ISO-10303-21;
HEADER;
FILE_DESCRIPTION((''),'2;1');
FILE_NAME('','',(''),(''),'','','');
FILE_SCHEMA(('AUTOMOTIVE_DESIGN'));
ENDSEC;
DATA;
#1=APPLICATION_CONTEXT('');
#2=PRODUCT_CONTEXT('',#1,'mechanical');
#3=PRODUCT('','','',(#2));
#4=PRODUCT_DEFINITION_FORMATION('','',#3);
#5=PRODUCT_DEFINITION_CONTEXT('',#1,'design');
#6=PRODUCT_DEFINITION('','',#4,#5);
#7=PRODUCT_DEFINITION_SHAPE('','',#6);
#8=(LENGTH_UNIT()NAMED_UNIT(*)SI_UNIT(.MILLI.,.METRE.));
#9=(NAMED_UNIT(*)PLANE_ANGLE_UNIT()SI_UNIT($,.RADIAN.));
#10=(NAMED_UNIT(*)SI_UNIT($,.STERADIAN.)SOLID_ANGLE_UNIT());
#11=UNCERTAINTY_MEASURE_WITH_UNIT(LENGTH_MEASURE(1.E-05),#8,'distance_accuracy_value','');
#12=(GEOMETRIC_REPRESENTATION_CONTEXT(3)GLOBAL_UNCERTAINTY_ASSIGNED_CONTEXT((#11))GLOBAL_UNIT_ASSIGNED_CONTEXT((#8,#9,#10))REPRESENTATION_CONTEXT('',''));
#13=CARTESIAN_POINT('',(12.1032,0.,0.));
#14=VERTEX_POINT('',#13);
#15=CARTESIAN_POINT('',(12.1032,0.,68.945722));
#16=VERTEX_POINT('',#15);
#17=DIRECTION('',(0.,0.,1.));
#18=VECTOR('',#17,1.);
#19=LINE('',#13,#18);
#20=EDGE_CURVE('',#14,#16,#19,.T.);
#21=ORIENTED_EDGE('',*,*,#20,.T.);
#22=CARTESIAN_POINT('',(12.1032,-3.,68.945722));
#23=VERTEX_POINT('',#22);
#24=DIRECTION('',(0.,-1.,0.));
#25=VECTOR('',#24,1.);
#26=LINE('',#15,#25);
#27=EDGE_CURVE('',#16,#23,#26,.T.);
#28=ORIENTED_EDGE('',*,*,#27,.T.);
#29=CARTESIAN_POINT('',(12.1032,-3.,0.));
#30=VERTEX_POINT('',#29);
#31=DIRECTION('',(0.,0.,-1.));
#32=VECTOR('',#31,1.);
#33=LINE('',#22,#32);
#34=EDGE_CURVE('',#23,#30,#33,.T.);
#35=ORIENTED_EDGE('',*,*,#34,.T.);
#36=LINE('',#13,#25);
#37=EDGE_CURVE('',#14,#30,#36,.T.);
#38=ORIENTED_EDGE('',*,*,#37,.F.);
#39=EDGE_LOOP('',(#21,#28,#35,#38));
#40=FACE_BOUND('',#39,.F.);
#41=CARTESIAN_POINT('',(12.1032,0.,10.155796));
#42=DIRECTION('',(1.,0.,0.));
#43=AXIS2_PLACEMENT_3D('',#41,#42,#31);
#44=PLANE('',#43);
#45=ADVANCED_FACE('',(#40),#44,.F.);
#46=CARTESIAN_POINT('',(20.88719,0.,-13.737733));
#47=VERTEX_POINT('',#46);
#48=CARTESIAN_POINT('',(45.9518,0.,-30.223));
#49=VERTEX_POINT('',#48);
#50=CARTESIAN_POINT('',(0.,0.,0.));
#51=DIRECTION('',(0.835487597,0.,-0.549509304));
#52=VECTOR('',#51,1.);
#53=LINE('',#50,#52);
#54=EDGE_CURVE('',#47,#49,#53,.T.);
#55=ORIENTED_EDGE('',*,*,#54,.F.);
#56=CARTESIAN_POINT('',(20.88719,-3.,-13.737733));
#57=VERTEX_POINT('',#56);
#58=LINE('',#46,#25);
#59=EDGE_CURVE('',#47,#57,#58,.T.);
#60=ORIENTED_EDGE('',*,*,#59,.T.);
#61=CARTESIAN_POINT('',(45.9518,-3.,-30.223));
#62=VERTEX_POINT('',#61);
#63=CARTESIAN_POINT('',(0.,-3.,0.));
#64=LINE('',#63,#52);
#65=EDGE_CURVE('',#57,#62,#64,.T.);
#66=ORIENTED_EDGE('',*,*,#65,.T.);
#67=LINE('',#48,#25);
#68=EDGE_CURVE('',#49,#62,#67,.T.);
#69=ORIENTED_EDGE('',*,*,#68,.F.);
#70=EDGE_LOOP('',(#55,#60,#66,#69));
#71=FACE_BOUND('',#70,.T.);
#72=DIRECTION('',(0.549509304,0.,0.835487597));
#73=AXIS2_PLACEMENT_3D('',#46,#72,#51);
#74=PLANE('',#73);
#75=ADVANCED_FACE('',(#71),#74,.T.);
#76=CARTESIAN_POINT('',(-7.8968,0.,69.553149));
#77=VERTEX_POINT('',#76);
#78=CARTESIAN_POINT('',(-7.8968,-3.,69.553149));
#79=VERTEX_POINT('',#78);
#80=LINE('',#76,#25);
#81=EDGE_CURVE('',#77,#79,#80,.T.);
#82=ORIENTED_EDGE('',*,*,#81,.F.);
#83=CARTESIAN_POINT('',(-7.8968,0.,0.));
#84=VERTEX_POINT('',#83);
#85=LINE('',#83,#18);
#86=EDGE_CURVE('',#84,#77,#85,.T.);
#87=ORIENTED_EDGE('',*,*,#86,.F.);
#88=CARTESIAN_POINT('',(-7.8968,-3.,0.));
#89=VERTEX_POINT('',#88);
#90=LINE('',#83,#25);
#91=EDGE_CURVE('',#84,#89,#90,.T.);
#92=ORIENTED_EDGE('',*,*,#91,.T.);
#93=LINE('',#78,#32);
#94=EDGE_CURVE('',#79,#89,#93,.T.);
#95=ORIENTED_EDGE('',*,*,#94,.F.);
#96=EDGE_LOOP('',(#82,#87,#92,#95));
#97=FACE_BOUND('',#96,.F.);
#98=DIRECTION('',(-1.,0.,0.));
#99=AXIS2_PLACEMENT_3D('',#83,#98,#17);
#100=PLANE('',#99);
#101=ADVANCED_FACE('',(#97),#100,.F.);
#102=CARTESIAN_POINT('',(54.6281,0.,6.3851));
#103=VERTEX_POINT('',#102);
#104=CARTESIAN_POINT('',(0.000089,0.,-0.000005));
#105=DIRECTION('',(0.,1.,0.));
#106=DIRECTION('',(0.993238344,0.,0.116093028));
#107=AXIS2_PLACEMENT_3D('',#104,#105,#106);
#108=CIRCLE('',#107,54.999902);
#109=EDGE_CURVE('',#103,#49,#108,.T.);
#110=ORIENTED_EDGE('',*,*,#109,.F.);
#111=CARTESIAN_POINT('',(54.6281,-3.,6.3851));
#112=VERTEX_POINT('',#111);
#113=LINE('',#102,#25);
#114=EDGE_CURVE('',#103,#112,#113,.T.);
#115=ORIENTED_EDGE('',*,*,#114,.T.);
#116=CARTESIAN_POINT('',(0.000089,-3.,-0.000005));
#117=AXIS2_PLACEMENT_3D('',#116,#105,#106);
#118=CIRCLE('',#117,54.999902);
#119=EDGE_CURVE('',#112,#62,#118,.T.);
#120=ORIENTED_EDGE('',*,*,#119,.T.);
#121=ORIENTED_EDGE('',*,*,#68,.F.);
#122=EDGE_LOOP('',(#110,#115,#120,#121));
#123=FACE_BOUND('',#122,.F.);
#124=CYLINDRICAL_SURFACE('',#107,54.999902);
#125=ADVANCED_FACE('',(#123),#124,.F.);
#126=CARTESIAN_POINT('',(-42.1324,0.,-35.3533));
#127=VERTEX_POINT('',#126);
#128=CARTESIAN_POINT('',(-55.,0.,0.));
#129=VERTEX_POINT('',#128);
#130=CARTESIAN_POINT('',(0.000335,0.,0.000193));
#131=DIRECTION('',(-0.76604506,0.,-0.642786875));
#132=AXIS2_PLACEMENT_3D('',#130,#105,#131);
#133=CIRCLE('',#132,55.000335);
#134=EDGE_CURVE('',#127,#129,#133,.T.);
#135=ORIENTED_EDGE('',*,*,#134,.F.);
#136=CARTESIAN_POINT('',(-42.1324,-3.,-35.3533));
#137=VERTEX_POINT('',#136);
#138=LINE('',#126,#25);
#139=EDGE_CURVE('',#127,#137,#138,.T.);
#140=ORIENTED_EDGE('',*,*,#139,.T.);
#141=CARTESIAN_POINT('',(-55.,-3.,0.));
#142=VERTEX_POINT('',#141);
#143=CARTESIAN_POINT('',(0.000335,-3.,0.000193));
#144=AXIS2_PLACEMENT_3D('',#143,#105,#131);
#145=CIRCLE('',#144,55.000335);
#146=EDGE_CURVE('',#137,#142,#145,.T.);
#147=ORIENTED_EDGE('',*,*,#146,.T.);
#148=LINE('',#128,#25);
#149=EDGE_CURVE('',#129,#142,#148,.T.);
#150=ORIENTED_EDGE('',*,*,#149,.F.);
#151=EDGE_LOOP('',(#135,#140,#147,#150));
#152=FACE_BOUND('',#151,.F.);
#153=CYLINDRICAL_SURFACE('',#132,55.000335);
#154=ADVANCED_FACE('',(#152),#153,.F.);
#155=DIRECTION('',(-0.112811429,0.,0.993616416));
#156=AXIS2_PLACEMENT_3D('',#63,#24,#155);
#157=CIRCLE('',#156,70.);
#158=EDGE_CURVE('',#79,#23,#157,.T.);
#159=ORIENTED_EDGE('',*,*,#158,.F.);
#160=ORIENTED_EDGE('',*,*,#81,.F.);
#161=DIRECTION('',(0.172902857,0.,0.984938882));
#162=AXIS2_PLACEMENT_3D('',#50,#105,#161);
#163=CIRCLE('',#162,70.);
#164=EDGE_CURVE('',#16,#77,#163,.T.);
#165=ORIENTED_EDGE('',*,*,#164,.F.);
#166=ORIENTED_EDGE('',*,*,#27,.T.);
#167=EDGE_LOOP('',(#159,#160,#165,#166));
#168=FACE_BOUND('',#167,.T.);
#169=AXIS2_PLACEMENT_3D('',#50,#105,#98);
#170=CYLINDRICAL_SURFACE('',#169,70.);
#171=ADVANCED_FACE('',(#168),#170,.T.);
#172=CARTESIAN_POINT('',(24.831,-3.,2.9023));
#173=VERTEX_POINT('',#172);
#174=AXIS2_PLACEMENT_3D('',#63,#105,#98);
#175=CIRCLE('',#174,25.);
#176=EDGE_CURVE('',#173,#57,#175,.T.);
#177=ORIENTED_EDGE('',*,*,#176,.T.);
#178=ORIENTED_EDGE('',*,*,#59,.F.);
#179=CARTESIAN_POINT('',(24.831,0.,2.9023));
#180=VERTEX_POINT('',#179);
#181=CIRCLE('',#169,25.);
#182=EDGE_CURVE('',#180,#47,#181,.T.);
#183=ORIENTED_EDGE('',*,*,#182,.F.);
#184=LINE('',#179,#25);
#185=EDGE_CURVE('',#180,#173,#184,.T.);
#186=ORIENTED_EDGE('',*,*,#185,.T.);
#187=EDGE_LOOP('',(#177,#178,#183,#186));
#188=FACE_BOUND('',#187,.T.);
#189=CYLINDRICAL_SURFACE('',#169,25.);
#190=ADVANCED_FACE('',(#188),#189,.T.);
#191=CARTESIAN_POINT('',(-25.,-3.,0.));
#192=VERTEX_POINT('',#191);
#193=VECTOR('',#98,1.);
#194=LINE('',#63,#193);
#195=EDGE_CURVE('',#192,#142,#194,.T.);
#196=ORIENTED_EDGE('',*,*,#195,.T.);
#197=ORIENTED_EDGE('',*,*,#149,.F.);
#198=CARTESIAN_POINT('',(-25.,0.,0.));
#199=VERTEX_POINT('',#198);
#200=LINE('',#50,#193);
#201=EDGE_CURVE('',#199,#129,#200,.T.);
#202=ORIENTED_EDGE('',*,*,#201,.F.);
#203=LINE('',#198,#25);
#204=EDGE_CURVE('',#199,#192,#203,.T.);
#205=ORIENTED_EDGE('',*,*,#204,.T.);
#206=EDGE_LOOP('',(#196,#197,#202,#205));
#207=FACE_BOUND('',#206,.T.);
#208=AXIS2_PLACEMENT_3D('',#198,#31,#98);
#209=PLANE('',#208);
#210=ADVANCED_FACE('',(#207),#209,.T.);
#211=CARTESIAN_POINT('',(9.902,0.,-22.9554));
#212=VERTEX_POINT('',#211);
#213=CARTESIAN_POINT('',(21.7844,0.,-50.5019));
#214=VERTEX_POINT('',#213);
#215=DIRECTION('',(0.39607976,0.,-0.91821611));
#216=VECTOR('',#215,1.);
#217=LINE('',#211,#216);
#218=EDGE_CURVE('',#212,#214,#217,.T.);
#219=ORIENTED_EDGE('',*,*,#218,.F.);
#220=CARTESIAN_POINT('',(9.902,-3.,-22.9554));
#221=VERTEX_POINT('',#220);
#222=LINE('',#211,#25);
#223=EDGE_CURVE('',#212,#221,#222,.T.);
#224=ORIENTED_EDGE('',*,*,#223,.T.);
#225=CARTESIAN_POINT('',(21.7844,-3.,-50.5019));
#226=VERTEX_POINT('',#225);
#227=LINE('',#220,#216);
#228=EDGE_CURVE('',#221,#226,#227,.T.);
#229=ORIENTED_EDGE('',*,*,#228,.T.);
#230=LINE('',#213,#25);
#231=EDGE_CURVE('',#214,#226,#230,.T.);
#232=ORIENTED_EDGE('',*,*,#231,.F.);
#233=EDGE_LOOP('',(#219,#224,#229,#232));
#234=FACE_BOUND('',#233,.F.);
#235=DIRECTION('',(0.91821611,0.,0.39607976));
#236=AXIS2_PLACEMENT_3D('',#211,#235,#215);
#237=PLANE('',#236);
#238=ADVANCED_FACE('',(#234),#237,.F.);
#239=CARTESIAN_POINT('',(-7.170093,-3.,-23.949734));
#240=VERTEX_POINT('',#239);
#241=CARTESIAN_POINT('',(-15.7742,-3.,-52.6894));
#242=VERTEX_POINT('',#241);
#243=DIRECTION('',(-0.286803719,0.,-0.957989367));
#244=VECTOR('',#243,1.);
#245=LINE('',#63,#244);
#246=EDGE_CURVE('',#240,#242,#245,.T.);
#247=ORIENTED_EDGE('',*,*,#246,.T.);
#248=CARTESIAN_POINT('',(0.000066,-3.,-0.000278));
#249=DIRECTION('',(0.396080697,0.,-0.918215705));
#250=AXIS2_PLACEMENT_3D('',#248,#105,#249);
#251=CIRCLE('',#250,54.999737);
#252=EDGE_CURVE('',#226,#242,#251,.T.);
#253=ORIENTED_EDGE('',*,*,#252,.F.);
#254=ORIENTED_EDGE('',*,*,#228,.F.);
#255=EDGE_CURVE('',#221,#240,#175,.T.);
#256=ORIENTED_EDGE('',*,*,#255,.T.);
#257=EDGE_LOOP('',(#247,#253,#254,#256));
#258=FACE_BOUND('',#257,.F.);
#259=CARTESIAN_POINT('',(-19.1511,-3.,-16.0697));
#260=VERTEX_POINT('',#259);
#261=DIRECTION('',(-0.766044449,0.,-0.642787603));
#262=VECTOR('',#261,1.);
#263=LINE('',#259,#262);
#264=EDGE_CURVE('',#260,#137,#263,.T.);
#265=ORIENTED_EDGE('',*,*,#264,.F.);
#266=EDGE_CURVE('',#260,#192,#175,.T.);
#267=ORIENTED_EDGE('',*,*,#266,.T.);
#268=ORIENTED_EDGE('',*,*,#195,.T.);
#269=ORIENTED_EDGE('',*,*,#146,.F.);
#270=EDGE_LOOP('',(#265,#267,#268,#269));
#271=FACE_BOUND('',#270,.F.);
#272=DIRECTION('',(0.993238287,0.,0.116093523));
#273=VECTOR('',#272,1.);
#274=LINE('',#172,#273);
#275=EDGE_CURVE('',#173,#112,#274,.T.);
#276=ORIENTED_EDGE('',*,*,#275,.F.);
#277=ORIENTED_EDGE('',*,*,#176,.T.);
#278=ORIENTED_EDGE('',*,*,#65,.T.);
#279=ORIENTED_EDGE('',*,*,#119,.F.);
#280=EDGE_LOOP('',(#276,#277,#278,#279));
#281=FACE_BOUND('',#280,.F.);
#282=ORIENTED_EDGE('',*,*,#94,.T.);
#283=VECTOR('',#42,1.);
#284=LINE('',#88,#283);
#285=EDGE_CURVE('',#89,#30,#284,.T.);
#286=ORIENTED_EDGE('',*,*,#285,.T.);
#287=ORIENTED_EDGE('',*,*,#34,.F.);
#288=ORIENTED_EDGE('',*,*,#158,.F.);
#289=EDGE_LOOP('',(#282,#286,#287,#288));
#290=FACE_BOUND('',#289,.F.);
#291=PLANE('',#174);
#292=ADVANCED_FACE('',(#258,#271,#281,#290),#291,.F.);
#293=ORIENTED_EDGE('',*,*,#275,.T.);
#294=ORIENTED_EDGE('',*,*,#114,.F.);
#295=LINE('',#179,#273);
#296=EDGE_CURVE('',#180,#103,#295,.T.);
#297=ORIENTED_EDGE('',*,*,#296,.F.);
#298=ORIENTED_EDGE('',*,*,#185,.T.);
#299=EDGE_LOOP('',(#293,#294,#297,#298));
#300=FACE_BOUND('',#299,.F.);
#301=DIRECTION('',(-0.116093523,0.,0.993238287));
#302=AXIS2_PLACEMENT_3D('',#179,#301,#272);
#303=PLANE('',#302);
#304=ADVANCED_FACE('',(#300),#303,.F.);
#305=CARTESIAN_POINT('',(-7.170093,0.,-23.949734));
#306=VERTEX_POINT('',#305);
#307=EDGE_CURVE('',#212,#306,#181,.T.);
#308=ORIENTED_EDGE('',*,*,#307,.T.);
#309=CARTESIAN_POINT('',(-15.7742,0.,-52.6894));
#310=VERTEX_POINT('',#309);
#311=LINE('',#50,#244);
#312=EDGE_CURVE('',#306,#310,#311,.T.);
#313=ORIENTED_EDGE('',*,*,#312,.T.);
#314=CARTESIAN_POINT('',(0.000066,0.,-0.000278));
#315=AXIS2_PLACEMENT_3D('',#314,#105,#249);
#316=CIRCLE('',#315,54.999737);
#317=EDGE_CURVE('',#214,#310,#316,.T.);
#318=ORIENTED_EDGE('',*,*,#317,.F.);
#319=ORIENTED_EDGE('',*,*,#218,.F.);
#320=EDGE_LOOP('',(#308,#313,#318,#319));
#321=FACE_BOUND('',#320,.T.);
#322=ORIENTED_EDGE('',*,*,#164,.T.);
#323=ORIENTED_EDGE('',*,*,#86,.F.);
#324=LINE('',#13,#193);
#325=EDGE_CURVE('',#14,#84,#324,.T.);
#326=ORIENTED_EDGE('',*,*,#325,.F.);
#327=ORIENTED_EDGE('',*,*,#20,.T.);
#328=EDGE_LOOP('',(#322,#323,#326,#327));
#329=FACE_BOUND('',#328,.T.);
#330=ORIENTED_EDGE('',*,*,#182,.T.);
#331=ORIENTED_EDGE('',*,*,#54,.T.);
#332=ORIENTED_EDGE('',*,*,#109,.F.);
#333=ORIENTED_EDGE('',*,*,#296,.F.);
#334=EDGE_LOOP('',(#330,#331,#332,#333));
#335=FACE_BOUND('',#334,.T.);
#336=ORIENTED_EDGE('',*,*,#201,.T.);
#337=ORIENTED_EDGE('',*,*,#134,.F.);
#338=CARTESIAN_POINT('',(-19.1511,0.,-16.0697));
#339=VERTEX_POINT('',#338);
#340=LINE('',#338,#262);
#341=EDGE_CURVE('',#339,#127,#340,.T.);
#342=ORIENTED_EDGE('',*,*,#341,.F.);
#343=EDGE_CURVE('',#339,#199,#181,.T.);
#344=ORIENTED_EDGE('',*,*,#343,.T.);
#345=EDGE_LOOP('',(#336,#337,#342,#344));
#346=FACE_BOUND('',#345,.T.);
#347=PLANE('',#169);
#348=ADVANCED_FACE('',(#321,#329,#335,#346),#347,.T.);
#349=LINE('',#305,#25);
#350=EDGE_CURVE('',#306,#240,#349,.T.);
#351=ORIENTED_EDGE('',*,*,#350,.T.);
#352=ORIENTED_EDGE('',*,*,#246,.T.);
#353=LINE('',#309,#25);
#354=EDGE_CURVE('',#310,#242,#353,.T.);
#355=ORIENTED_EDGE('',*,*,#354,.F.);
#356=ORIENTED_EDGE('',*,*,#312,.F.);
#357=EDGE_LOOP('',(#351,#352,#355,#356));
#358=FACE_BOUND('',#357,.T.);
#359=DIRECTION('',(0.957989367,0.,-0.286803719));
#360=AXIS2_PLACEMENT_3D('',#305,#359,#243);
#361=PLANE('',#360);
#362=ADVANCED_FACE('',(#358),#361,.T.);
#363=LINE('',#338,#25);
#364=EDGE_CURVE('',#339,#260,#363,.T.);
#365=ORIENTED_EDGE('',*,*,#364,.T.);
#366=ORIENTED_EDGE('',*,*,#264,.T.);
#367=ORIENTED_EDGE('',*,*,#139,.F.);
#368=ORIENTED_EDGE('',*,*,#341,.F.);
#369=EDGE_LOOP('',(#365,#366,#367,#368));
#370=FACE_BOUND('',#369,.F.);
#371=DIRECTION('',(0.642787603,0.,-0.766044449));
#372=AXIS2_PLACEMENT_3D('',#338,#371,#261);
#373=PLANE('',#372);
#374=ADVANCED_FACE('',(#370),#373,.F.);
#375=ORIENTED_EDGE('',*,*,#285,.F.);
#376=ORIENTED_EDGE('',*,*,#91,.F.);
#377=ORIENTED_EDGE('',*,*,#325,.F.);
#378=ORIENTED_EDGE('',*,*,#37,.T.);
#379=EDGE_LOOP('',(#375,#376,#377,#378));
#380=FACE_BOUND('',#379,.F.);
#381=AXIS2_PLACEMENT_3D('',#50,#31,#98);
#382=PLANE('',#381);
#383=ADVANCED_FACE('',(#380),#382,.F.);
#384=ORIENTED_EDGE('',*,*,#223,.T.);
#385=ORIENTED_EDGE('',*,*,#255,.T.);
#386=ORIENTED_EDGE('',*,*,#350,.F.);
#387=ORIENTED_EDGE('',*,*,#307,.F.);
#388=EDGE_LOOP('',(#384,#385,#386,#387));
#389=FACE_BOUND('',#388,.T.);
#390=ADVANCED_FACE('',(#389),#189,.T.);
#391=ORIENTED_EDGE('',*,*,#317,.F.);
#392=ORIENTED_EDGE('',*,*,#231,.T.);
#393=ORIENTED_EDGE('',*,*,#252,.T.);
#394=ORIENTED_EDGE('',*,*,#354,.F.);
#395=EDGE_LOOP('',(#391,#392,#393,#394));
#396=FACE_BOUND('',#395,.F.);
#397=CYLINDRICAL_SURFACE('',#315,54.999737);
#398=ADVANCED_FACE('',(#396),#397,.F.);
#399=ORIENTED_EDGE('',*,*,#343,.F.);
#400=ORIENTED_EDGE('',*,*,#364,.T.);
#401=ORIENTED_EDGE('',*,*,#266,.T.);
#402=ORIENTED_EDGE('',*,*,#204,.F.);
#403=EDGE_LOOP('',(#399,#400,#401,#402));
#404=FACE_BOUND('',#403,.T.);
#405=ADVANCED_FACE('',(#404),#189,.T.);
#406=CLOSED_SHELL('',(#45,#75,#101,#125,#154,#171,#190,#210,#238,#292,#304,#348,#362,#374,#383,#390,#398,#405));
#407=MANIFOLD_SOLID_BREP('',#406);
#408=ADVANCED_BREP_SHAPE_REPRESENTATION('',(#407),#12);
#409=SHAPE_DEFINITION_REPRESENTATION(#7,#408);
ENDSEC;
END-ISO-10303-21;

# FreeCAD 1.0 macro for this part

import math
import FreeCAD as App
import Part
import Sketcher

V = App.Vector
Q = App.Units.Quantity

doc = App.newDocument("Part")
body = doc.addObject("PartDesign::Body", "Body")

sketch1 = doc.addObject("Sketcher::SketchObject", "Sketch")
body.addObject(sketch1)
sketch1.AttachmentSupport = (doc.XZ_Plane, [""])
sketch1.MapMode = "FlatFace"
sketch1.addGeometry(Part.LineSegment(V(-8, 0, 0), V(12, 0, 0)), False)
sketch1.addGeometry(Part.LineSegment(V(12, 0, 0), V(12, 69, 0)), False)
sketch1.addGeometry(Part.ArcOfCircle(Part.Circle(V(0, 0, 0), V(0, 0, 1), 70), math.radians(96), math.radians(440)), False)
sketch1.addGeometry(Part.LineSegment(V(-8, 70, 0), V(-8, 0, 0)), False)
sketch1.addGeometry(Part.ArcOfCircle(Part.Circle(V(0, 0, 0), V(0, 0, 1), 25), math.radians(180), math.radians(220)), False)
sketch1.addGeometry(Part.LineSegment(V(-25, 0, 0), V(-55, 0, 0)), False)
sketch1.addGeometry(Part.ArcOfCircle(Part.Circle(V(0, 0, 0), V(0, 0, 1), 55), math.radians(180), math.radians(220)), False)
sketch1.addGeometry(Part.LineSegment(V(-42, -35, 0), V(-19, -16, 0)), False)
sketch1.addGeometry(Part.LineSegment(V(55, 6, 0), V(25, 3, 0)), False)
sketch1.addGeometry(Part.ArcOfCircle(Part.Circle(V(0, 0, 0), V(0, 0, 1), 25), math.radians(-33), math.radians(7)), False)
sketch1.addGeometry(Part.LineSegment(V(21, -14, 0), V(46, -30, 0)), False)
sketch1.addGeometry(Part.ArcOfCircle(Part.Circle(V(0, 0, 0), V(0, 0, 1), 55), math.radians(-33), math.radians(7)), False)
sketch1.addGeometry(Part.LineSegment(V(22, -51, 0), V(10, -23, 0)), False)
sketch1.addGeometry(Part.ArcOfCircle(Part.Circle(V(0, 0, 0), V(0, 0, 1), 25), math.radians(-107), math.radians(-67)), False)
sketch1.addGeometry(Part.LineSegment(V(-7, -24, 0), V(-16, -53, 0)), False)
sketch1.addGeometry(Part.ArcOfCircle(Part.Circle(V(0, 0, 0), V(0, 0, 1), 55), math.radians(-107), math.radians(-67)), False)
sketch1.addConstraint(Sketcher.Constraint("Coincident", 0, 2, 1, 1))
sketch1.addConstraint(Sketcher.Constraint("Coincident", 1, 2, 2, 2))
sketch1.addConstraint(Sketcher.Constraint("Coincident", 2, 1, 3, 1))
sketch1.addConstraint(Sketcher.Constraint("Coincident", 3, 2, 0, 1))
sketch1.addConstraint(Sketcher.Constraint("Coincident", 4, 1, 5, 1))
sketch1.addConstraint(Sketcher.Constraint("Coincident", 5, 2, 6, 1))
sketch1.addConstraint(Sketcher.Constraint("Coincident", 6, 2, 7, 1))
sketch1.addConstraint(Sketcher.Constraint("Coincident", 7, 2, 4, 2))
sketch1.addConstraint(Sketcher.Constraint("Coincident", 8, 2, 9, 2))
sketch1.addConstraint(Sketcher.Constraint("Coincident", 9, 1, 10, 1))
sketch1.addConstraint(Sketcher.Constraint("Coincident", 10, 2, 11, 1))
sketch1.addConstraint(Sketcher.Constraint("Coincident", 11, 2, 8, 1))
sketch1.addConstraint(Sketcher.Constraint("Coincident", 12, 2, 13, 2))
sketch1.addConstraint(Sketcher.Constraint("Coincident", 13, 1, 14, 1))
sketch1.addConstraint(Sketcher.Constraint("Coincident", 14, 2, 15, 1))
sketch1.addConstraint(Sketcher.Constraint("Coincident", 15, 2, 12, 1))
sketch1.addConstraint(Sketcher.Constraint("Horizontal", 0))
sketch1.addConstraint(Sketcher.Constraint("Vertical", 1))
sketch1.addConstraint(Sketcher.Constraint("Vertical", 3))
sketch1.addConstraint(Sketcher.Constraint("Horizontal", 5))
sketch1.addConstraint(Sketcher.Constraint("Coincident", 2, 3, -1, 1))
sketch1.addConstraint(Sketcher.Constraint("Coincident", 4, 3, -1, 1))
sketch1.addConstraint(Sketcher.Constraint("Coincident", 6, 3, -1, 1))
sketch1.addConstraint(Sketcher.Constraint("Coincident", 9, 3, -1, 1))
sketch1.addConstraint(Sketcher.Constraint("Coincident", 11, 3, -1, 1))
sketch1.addConstraint(Sketcher.Constraint("Coincident", 13, 3, -1, 1))
sketch1.addConstraint(Sketcher.Constraint("Coincident", 15, 3, -1, 1))
sketch1.addConstraint(Sketcher.Constraint("Equal", 4, 9))
sketch1.addConstraint(Sketcher.Constraint("Equal", 6, 11))
sketch1.addConstraint(Sketcher.Constraint("Equal", 9, 13))
sketch1.addConstraint(Sketcher.Constraint("Equal", 11, 15))
sketch1.addConstraint(Sketcher.Constraint("PointOnObject", 0, 2, -1))
sketch1.addConstraint(Sketcher.Constraint("PointOnObject", 4, 1, -1))
sketch1.addConstraint(Sketcher.Constraint("Radius", 2, 70.0))
sketch1.addConstraint(Sketcher.Constraint("Radius", 4, 25.0))
sketch1.addConstraint(Sketcher.Constraint("Radius", 6, 55.0))
sketch1.addConstraint(Sketcher.Constraint("DistanceX", 0, 1, 0, 2, 20.0))
sketch1.addConstraint(Sketcher.Constraint("Angle", 7, Q("40 deg")))
sketch1.addConstraint(Sketcher.Constraint("DistanceX", 13, 1, -1, 1, 7.17))
sketch1.addConstraint(Sketcher.Constraint("DistanceY", 9, 1, 8, 2, 16.64))
sketch1.addConstraint(Sketcher.Constraint("DistanceY", 13, 1, 7, 2, 7.88))
sketch1.addConstraint(Sketcher.Constraint("DistanceY", 1, 1, 1, 2, 68.9457))
sketch1.addConstraint(Sketcher.Constraint("DistanceX", -1, 1, 8, 2, 24.831))
sketch1.addConstraint(Sketcher.Constraint("DistanceY", 10, 2, -1, 1, 30.223))
sketch1.addConstraint(Sketcher.Constraint("DistanceX", -1, 1, 11, 2, 54.628))
sketch1.addConstraint(Sketcher.Constraint("DistanceX", -1, 1, 12, 2, 9.902))
sketch1.addConstraint(Sketcher.Constraint("DistanceX", 14, 2, 13, 1, 8.604))
sketch1.addConstraint(Sketcher.Constraint("DistanceY", 15, 2, 9, 1, 36.764))
pad1 = doc.addObject("PartDesign::Pad", "Pad")
body.addObject(pad1)
pad1.Profile = sketch1
pad1.Length = 3

doc.recompute()
